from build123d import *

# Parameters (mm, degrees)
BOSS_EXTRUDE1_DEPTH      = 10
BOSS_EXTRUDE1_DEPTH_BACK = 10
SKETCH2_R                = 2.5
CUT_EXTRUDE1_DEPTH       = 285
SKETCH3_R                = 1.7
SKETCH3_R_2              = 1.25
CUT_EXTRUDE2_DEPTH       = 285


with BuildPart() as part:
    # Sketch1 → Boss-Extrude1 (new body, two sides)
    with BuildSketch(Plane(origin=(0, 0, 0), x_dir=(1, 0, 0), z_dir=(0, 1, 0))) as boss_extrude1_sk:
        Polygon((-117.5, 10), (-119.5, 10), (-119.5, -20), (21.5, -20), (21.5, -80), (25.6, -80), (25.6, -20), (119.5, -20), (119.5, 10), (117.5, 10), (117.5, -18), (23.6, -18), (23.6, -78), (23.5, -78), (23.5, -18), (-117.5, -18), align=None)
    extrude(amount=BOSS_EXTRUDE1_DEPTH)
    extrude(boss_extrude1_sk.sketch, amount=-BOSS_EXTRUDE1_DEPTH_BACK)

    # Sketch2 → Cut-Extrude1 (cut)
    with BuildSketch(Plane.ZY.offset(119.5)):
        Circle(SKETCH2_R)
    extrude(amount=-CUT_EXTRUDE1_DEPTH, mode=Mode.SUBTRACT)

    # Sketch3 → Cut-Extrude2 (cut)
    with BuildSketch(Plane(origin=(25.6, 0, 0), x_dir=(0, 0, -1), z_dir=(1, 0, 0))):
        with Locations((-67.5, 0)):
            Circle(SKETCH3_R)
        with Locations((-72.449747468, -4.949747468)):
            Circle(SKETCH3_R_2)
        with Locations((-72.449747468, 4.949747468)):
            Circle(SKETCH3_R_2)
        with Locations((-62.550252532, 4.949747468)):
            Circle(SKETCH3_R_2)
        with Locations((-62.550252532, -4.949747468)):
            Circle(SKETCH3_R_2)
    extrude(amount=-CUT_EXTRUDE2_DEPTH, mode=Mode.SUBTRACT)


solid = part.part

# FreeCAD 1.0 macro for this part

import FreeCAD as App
import Part
import Sketcher

V = App.Vector


def add_polygon(sketch, points):
    """Adds a closed chain of lines whose ends are joined by coincident constraints."""
    first, n = sketch.GeometryCount, len(points)
    for a, b in zip(points, points[1:] + points[:1]):
        sketch.addGeometry(Part.LineSegment(App.Vector(*a, 0), App.Vector(*b, 0)), False)
    for i in range(n):
        sketch.addConstraint(Sketcher.Constraint("Coincident", first + i, 2, first + (i + 1) % n, 1))

doc = App.newDocument("Part")
params = doc.addObject("Spreadsheet::Sheet", "Params")
for row, (alias, value) in enumerate([
    ("sketch1_width", "2 mm"),
    ("sketch1_width2", "141 mm"),
    ("sketch1_height", "30 mm"),
    ("sketch1_height2", "60 mm"),
    ("sketch1_height3", "28 mm"),
    ("pad1_length", "10 mm"),
    ("pad1_length2", "10 mm"),
    ("sketch2_diameter", "5 mm"),
    ("pocket1_length", "285 mm"),
    ("sketch3_diameter", "3.4 mm"),
    ("sketch3_diameter2", "2.5 mm"),
    ("pocket2_length", "285 mm"),
], start=1):
    params.set(f"A{row}", alias)
    params.set(f"B{row}", "=" + value)
    params.setAlias(f"B{row}", alias)

body = doc.addObject("PartDesign::Body", "Body")

# Sketch on XZ plane
sketch1 = body.newObject("Sketcher::SketchObject", "Sketch")
sketch1.AttachmentSupport = (doc.getObject("XZ_Plane"), [""])
sketch1.MapMode = "FlatFace"
add_polygon(sketch1, [(-117.5, -10), (-119.5, -10), (-119.5, 20), (21.5, 20), (21.5, 80), (25.6, 80), (25.6, 20), (119.5, 20), (119.5, -10), (117.5, -10), (117.5, 18), (23.6, 18), (23.6, 78), (23.5, 78), (23.5, 18), (-117.5, 18)])  # lines 0-15
sketch1.addConstraint([
    Sketcher.Constraint("Horizontal", 0),
    Sketcher.Constraint("Vertical", 1),
    Sketcher.Constraint("Horizontal", 2),
    Sketcher.Constraint("Vertical", 3),
    Sketcher.Constraint("Horizontal", 4),
    Sketcher.Constraint("Vertical", 5),
    Sketcher.Constraint("Horizontal", 6),
    Sketcher.Constraint("Vertical", 7),
    Sketcher.Constraint("Horizontal", 8),
    Sketcher.Constraint("Vertical", 9),
    Sketcher.Constraint("Horizontal", 10),
    Sketcher.Constraint("Vertical", 11),
    Sketcher.Constraint("Horizontal", 12),
    Sketcher.Constraint("Vertical", 13),
    Sketcher.Constraint("Horizontal", 14),
    Sketcher.Constraint("Vertical", 15),
    Sketcher.Constraint("Symmetric", 1, 2, 6, 2, -2),
    Sketcher.Constraint("Symmetric", 9, 2, 14, 2, -2),
    Sketcher.Constraint("Horizontal", 0, 2, 7, 2),
    Sketcher.Constraint("Equal", 6, 10),
    Sketcher.Constraint("Equal", 2, 14),
    Sketcher.Constraint("Equal", 5, 11),
    Sketcher.Constraint("DistanceX", 0, 2, 0, 1, 2.0),
    Sketcher.Constraint("DistanceX", 2, 1, 2, 2, 141.0),
    Sketcher.Constraint("DistanceY", 1, 1, 1, 2, 30.0),
    Sketcher.Constraint("DistanceY", 3, 1, 3, 2, 60.0),
    Sketcher.Constraint("DistanceY", 9, 1, 9, 2, 28.0),
    Sketcher.Constraint("DistanceX", 4, 1, 4, 2, 4.1),
    Sketcher.Constraint("DistanceX", 6, 1, 6, 2, 93.9),
    Sketcher.Constraint("DistanceY", 0, 2, -1, 1, 10.0),
])
sketch1.setExpression("Constraints[38]", "Params.sketch1_width")
sketch1.setExpression("Constraints[39]", "Params.sketch1_width2")
sketch1.setExpression("Constraints[40]", "Params.sketch1_height")
sketch1.setExpression("Constraints[41]", "Params.sketch1_height2")
sketch1.setExpression("Constraints[42]", "Params.sketch1_height3")
pad1 = body.newObject("PartDesign::Pad", "Pad")
pad1.Profile = sketch1
pad1.Type = "TwoLengths"
pad1.setExpression("Length", "Params.pad1_length")
pad1.setExpression("Length2", "Params.pad1_length2")
pad1.Reversed = True

# Sketch on YZ plane
sketch2 = body.newObject("Sketcher::SketchObject", "Sketch001")
sketch2.AttachmentSupport = (doc.getObject("YZ_Plane"), [""])
sketch2.MapMode = "FlatFace"
sketch2.AttachmentOffset = App.Placement(V(0, 0, -119.5), App.Rotation())
sketch2.addGeometry(Part.Circle(V(0, 0, 0), V(0, 0, 1), 2.5), False)
sketch2.addConstraint([
    Sketcher.Constraint("Coincident", 0, 3, -1, 1),
    Sketcher.Constraint("Diameter", 0, 5.0),
])
sketch2.setExpression("Constraints[1]", "Params.sketch2_diameter")
pocket1 = body.newObject("PartDesign::Pocket", "Pocket")
pocket1.Profile = sketch2
pocket1.setExpression("Length", "Params.pocket1_length")
pocket1.Reversed = True

# Sketch on YZ plane
sketch3 = body.newObject("Sketcher::SketchObject", "Sketch002")
sketch3.AttachmentSupport = (doc.getObject("YZ_Plane"), [""])
sketch3.MapMode = "FlatFace"
sketch3.AttachmentOffset = App.Placement(V(0, 0, 25.6), App.Rotation())
sketch3.addGeometry([
    Part.Circle(V(0, 67.5, 0), V(0, 0, 1), 1.7),  # 0
    Part.Circle(V(-4.9, 72.4, 0), V(0, 0, 1), 1.2),  # 1
    Part.Circle(V(4.9, 72.4, 0), V(0, 0, 1), 1.2),  # 2
    Part.Circle(V(4.9, 62.6, 0), V(0, 0, 1), 1.2),  # 3
    Part.Circle(V(-4.9, 62.6, 0), V(0, 0, 1), 1.2),  # 4
], False)
sketch3.addConstraint([
    Sketcher.Constraint("Equal", 1, 2),
    Sketcher.Constraint("Equal", 2, 3),
    Sketcher.Constraint("Equal", 3, 4),
    Sketcher.Constraint("Symmetric", 1, 3, 2, 3, -2),
    Sketcher.Constraint("Symmetric", 3, 3, 4, 3, -2),
    Sketcher.Constraint("PointOnObject", 0, 3, -2),
    Sketcher.Constraint("Vertical", 2, 3, 3, 3),
    Sketcher.Constraint("Diameter", 0, 3.4),
    Sketcher.Constraint("Diameter", 1, 2.5),
    Sketcher.Constraint("DistanceY", -1, 1, 0, 3, 67.5),
    Sketcher.Constraint("DistanceX", 1, 3, -1, 1, 4.949747),
    Sketcher.Constraint("DistanceY", -1, 1, 1, 3, 72.449747),
    Sketcher.Constraint("DistanceY", -1, 1, 3, 3, 62.550253),
])
sketch3.setExpression("Constraints[7]", "Params.sketch3_diameter")
sketch3.setExpression("Constraints[8]", "Params.sketch3_diameter2")
pocket2 = body.newObject("PartDesign::Pocket", "Pocket001")
pocket2.Profile = sketch3
pocket2.setExpression("Length", "Params.pocket2_length")

doc.recompute()
